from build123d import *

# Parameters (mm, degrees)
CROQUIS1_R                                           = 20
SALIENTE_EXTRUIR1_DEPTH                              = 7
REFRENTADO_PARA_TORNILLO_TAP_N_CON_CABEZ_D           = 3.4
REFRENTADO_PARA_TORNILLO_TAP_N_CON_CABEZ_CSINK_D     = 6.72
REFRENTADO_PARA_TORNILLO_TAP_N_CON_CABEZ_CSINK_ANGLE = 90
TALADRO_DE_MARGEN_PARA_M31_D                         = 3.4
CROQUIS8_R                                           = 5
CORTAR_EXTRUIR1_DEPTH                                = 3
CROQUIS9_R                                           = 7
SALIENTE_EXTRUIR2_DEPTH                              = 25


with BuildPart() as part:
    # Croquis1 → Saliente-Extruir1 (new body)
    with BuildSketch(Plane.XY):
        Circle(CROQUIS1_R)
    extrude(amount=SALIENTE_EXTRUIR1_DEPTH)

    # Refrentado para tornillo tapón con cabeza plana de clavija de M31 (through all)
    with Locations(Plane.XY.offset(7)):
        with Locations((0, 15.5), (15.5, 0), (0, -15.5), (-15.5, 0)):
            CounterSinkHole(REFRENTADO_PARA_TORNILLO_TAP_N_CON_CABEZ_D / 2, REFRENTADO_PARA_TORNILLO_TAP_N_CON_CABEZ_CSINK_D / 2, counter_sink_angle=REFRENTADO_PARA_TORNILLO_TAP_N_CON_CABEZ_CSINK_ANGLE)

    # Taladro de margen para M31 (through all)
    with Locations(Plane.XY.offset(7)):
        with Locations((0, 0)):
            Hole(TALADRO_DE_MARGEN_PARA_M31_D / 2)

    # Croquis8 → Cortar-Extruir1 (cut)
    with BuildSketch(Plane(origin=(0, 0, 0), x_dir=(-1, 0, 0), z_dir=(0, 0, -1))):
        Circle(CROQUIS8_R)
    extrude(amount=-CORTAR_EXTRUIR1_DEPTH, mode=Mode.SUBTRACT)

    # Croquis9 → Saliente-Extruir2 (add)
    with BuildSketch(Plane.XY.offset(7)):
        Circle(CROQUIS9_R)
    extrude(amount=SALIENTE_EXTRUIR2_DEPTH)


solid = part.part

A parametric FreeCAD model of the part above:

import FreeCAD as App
import Part
import Sketcher

V = App.Vector
Q = App.Units.Quantity

doc = App.newDocument("Part")
params = doc.addObject("Spreadsheet::Sheet", "Params")
for row, (alias, value) in enumerate([
    ("sketch1_diameter", "40 mm"),
    ("pad1_length", "7 mm"),
    ("sketch2_diameter", "3.4 mm"),
    ("hole_diameter", "3.4 mm"),
    ("hole_csink_diameter", "6.72 mm"),
    ("sketch3_diameter", "3.4 mm"),
    ("hole2_diameter", "3.4 mm"),
    ("sketch4_diameter", "10 mm"),
    ("pocket1_length", "3 mm"),
    ("sketch5_diameter", "14 mm"),
    ("pad2_length", "25 mm"),
], start=1):
    params.set(f"A{row}", alias)
    params.set(f"B{row}", "=" + value)
    params.setAlias(f"B{row}", alias)

body = doc.addObject("PartDesign::Body", "Body")

sketch1 = body.newObject("Sketcher::SketchObject", "Sketch")
sketch1.AttachmentSupport = (doc.getObject("XY_Plane"), [""])
sketch1.MapMode = "FlatFace"
sketch1.addGeometry(Part.Circle(V(0, 0, 0), V(0, 0, 1), 20), False)
sketch1.addConstraint([
    Sketcher.Constraint("Coincident", 0, 3, -1, 1),
    Sketcher.Constraint("Diameter", 0, Q("40 mm")),
])
sketch1.setExpression("Constraints[1]", "Params.sketch1_diameter")
pad1 = body.newObject("PartDesign::Pad", "Pad")
pad1.Profile = sketch1
pad1.setExpression("Length", "Params.pad1_length")

sketch2 = body.newObject("Sketcher::SketchObject", "Sketch001")
sketch2.AttachmentSupport = (doc.getObject("XY_Plane"), [""])
sketch2.MapMode = "FlatFace"
sketch2.AttachmentOffset = App.Placement(V(0, 0, 7), App.Rotation())
sketch2.addGeometry([
    Part.Circle(V(0, 15.5, 0), V(0, 0, 1), 1.7),
    Part.Circle(V(15.5, 0, 0), V(0, 0, 1), 1.7),
    Part.Circle(V(0, -15.5, 0), V(0, 0, 1), 1.7),
    Part.Circle(V(-15.5, 0, 0), V(0, 0, 1), 1.7),
], False)
sketch2.addConstraint([
    Sketcher.Constraint("Equal", 0, 1),
    Sketcher.Constraint("Equal", 1, 2),
    Sketcher.Constraint("Equal", 2, 3),
    Sketcher.Constraint("Symmetric", 0, 3, 2, 3, -1, 1),
    Sketcher.Constraint("Symmetric", 1, 3, 3, 3, -1, 1),
    Sketcher.Constraint("PointOnObject", 0, 3, -2),
    Sketcher.Constraint("PointOnObject", 1, 3, -1),
    Sketcher.Constraint("Diameter", 0, Q("3.4 mm")),
    Sketcher.Constraint("DistanceY", 2, 3, 0, 3, Q("31 mm")),
    Sketcher.Constraint("DistanceX", 3, 3, 1, 3, Q("31 mm")),
])
sketch2.setExpression("Constraints[7]", "Params.sketch2_diameter")
doc.recompute()
hole = body.newObject("PartDesign::Hole", "Hole")
hole.Profile = sketch2
hole.ThreadType = "None"
hole.setExpression("Diameter", "Params.hole_diameter")
hole.DepthType = "ThroughAll"
hole.HoleCutType = "Countersink"
hole.setExpression("HoleCutDiameter", "Params.hole_csink_diameter")
hole.HoleCutCountersinkAngle = 90

sketch3 = body.newObject("Sketcher::SketchObject", "Sketch002")
sketch3.AttachmentSupport = (doc.getObject("XY_Plane"), [""])
sketch3.MapMode = "FlatFace"
sketch3.AttachmentOffset = App.Placement(V(0, 0, 7), App.Rotation())
sketch3.addGeometry(Part.Circle(V(0, 0, 0), V(0, 0, 1), 1.7), False)
sketch3.addConstraint([
    Sketcher.Constraint("Coincident", 0, 3, -1, 1),
    Sketcher.Constraint("Diameter", 0, Q("3.4 mm")),
])
sketch3.setExpression("Constraints[1]", "Params.sketch3_diameter")
doc.recompute()
hole2 = body.newObject("PartDesign::Hole", "Hole001")
hole2.Profile = sketch3
hole2.ThreadType = "None"
hole2.setExpression("Diameter", "Params.hole2_diameter")
hole2.DepthType = "ThroughAll"

sketch4 = body.newObject("Sketcher::SketchObject", "Sketch003")
sketch4.AttachmentSupport = (doc.getObject("XY_Plane"), [""])
sketch4.MapMode = "FlatFace"
sketch4.addGeometry(Part.Circle(V(0, 0, 0), V(0, 0, 1), 5), False)
sketch4.addConstraint([
    Sketcher.Constraint("Coincident", 0, 3, -1, 1),
    Sketcher.Constraint("Diameter", 0, Q("10 mm")),
])
sketch4.setExpression("Constraints[1]", "Params.sketch4_diameter")
pocket1 = body.newObject("PartDesign::Pocket", "Pocket")
pocket1.Profile = sketch4
pocket1.setExpression("Length", "Params.pocket1_length")
pocket1.Reversed = True

sketch5 = body.newObject("Sketcher::SketchObject", "Sketch004")
sketch5.AttachmentSupport = (doc.getObject("XY_Plane"), [""])
sketch5.MapMode = "FlatFace"
sketch5.AttachmentOffset = App.Placement(V(0, 0, 7), App.Rotation())
sketch5.addGeometry(Part.Circle(V(0, 0, 0), V(0, 0, 1), 7), False)
sketch5.addConstraint([
    Sketcher.Constraint("Coincident", 0, 3, -1, 1),
    Sketcher.Constraint("Diameter", 0, Q("14 mm")),
])
sketch5.setExpression("Constraints[1]", "Params.sketch5_diameter")
pad2 = body.newObject("PartDesign::Pad", "Pad001")
pad2.Profile = sketch5
pad2.setExpression("Length", "Params.pad2_length")

doc.recompute()
